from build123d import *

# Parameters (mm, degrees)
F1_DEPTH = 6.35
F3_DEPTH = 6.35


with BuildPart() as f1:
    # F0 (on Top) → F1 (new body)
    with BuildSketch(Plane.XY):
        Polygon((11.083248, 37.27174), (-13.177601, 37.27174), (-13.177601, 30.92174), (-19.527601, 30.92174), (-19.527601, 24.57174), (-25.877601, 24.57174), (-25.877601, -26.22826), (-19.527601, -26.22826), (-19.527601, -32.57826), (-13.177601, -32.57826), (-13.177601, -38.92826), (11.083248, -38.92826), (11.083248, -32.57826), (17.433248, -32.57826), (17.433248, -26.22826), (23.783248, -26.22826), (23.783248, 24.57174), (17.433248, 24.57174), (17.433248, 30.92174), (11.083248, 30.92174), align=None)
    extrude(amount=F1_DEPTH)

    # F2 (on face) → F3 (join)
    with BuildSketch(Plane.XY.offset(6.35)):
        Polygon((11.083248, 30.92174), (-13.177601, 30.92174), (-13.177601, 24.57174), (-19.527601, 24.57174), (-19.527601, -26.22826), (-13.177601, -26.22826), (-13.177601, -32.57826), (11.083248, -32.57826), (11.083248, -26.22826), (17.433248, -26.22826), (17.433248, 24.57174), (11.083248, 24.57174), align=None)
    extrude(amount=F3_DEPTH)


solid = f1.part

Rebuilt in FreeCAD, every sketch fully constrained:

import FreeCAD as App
import Part
import Sketcher
Q = App.Units.Quantity

doc = App.newDocument("Part")
body = doc.addObject("PartDesign::Body", "Body")

sketch1 = body.newObject("Sketcher::SketchObject", "Sketch")
sketch1.AttachmentSupport = (doc.getObject("XY_Plane"), [""])
sketch1.MapMode = "FlatFace"
sketch1.addGeometry([
    Part.LineSegment(App.Vector(11, 37, 0), App.Vector(-13, 37, 0)),
    Part.LineSegment(App.Vector(-13, 37, 0), App.Vector(-13, 31, 0)),
    Part.LineSegment(App.Vector(-13, 31, 0), App.Vector(-20, 31, 0)),
    Part.LineSegment(App.Vector(-20, 31, 0), App.Vector(-20, 25, 0)),
    Part.LineSegment(App.Vector(-20, 25, 0), App.Vector(-26, 25, 0)),
    Part.LineSegment(App.Vector(-26, 25, 0), App.Vector(-26, -26, 0)),
    Part.LineSegment(App.Vector(-26, -26, 0), App.Vector(-20, -26, 0)),
    Part.LineSegment(App.Vector(-20, -26, 0), App.Vector(-20, -33, 0)),
    Part.LineSegment(App.Vector(-20, -33, 0), App.Vector(-13, -33, 0)),
    Part.LineSegment(App.Vector(-13, -33, 0), App.Vector(-13, -39, 0)),
    Part.LineSegment(App.Vector(-13, -39, 0), App.Vector(11, -39, 0)),
    Part.LineSegment(App.Vector(11, -39, 0), App.Vector(11, -33, 0)),
    Part.LineSegment(App.Vector(11, -33, 0), App.Vector(17, -33, 0)),
    Part.LineSegment(App.Vector(17, -33, 0), App.Vector(17, -26, 0)),
    Part.LineSegment(App.Vector(17, -26, 0), App.Vector(24, -26, 0)),
    Part.LineSegment(App.Vector(24, -26, 0), App.Vector(24, 25, 0)),
    Part.LineSegment(App.Vector(24, 25, 0), App.Vector(17, 25, 0)),
    Part.LineSegment(App.Vector(17, 25, 0), App.Vector(17, 31, 0)),
    Part.LineSegment(App.Vector(17, 31, 0), App.Vector(11, 31, 0)),
    Part.LineSegment(App.Vector(11, 31, 0), App.Vector(11, 37, 0)),
], False)
sketch1.addConstraint([
    Sketcher.Constraint("Coincident", 0, 2, 1, 1),
    Sketcher.Constraint("Coincident", 1, 2, 2, 1),
    Sketcher.Constraint("Coincident", 2, 2, 3, 1),
    Sketcher.Constraint("Coincident", 3, 2, 4, 1),
    Sketcher.Constraint("Coincident", 4, 2, 5, 1),
    Sketcher.Constraint("Coincident", 5, 2, 6, 1),
    Sketcher.Constraint("Coincident", 6, 2, 7, 1),
    Sketcher.Constraint("Coincident", 7, 2, 8, 1),
    Sketcher.Constraint("Coincident", 8, 2, 9, 1),
    Sketcher.Constraint("Coincident", 9, 2, 10, 1),
    Sketcher.Constraint("Coincident", 10, 2, 11, 1),
    Sketcher.Constraint("Coincident", 11, 2, 12, 1),
    Sketcher.Constraint("Coincident", 12, 2, 13, 1),
    Sketcher.Constraint("Coincident", 13, 2, 14, 1),
    Sketcher.Constraint("Coincident", 14, 2, 15, 1),
    Sketcher.Constraint("Coincident", 15, 2, 16, 1),
    Sketcher.Constraint("Coincident", 16, 2, 17, 1),
    Sketcher.Constraint("Coincident", 17, 2, 18, 1),
    Sketcher.Constraint("Coincident", 18, 2, 19, 1),
    Sketcher.Constraint("Coincident", 19, 2, 0, 1),
    Sketcher.Constraint("Horizontal", 0),
    Sketcher.Constraint("Vertical", 1),
    Sketcher.Constraint("Horizontal", 2),
    Sketcher.Constraint("Vertical", 3),
    Sketcher.Constraint("Horizontal", 4),
    Sketcher.Constraint("Vertical", 5),
    Sketcher.Constraint("Horizontal", 6),
    Sketcher.Constraint("Vertical", 7),
    Sketcher.Constraint("Horizontal", 8),
    Sketcher.Constraint("Vertical", 9),
    Sketcher.Constraint("Horizontal", 10),
    Sketcher.Constraint("Vertical", 11),
    Sketcher.Constraint("Horizontal", 12),
    Sketcher.Constraint("Vertical", 13),
    Sketcher.Constraint("Horizontal", 14),
    Sketcher.Constraint("Vertical", 15),
    Sketcher.Constraint("Horizontal", 16),
    Sketcher.Constraint("Vertical", 17),
    Sketcher.Constraint("Horizontal", 18),
    Sketcher.Constraint("Vertical", 19),
    Sketcher.Constraint("Horizontal", 8, 2, 11, 2),
    Sketcher.Constraint("Horizontal", 6, 2, 13, 2),
    Sketcher.Constraint("Horizontal", 4, 2, 15, 2),
    Sketcher.Constraint("Horizontal", 2, 2, 17, 2),
    Sketcher.Constraint("Vertical", 3, 2, 6, 2),
    Sketcher.Constraint("Vertical", 1, 2, 8, 2),
    Sketcher.Constraint("Vertical", 13, 2, 16, 2),
    Sketcher.Constraint("Vertical", 11, 2, 18, 2),
    Sketcher.Constraint("Equal", 2, 4),
    Sketcher.Constraint("Equal", 8, 12),
    Sketcher.Constraint("Equal", 12, 14),
    Sketcher.Constraint("Equal", 18, 1),
    Sketcher.Constraint("Equal", 1, 3),
    Sketcher.Constraint("Equal", 3, 7),
    Sketcher.Constraint("Equal", 7, 9),
    Sketcher.Constraint("DistanceY", 5, 2, 5, 1, Q("2 in")),
    Sketcher.Constraint("DistanceX", 2, 2, 2, 1, Q("0.25 in")),
    Sketcher.Constraint("DistanceX", 0, 2, 0, 1, 24.260849),
    Sketcher.Constraint("DistanceX", 0, 2, -1, 1, 13.177601),
    Sketcher.Constraint("DistanceY", -1, 1, 0, 2, 37.27174),
])
pad1 = body.newObject("PartDesign::Pad", "Pad")
pad1.Profile = sketch1
pad1.Length = Q("0.25 in")

sketch2 = body.newObject("Sketcher::SketchObject", "Sketch001")
sketch2.AttachmentSupport = (doc.getObject("XY_Plane"), [""])
sketch2.MapMode = "FlatFace"
sketch2.AttachmentOffset = App.Placement(App.Vector(0, 0, 0.25 * 25.4), App.Rotation())
sketch2.addGeometry([
    Part.LineSegment(App.Vector(11, 31, 0), App.Vector(-13, 31, 0)),
    Part.LineSegment(App.Vector(-13, 31, 0), App.Vector(-13, 25, 0)),
    Part.LineSegment(App.Vector(-13, 25, 0), App.Vector(-20, 25, 0)),
    Part.LineSegment(App.Vector(-20, 25, 0), App.Vector(-20, -26, 0)),
    Part.LineSegment(App.Vector(-20, -26, 0), App.Vector(-13, -26, 0)),
    Part.LineSegment(App.Vector(-13, -26, 0), App.Vector(-13, -33, 0)),
    Part.LineSegment(App.Vector(-13, -33, 0), App.Vector(11, -33, 0)),
    Part.LineSegment(App.Vector(11, -33, 0), App.Vector(11, -26, 0)),
    Part.LineSegment(App.Vector(11, -26, 0), App.Vector(17, -26, 0)),
    Part.LineSegment(App.Vector(17, -26, 0), App.Vector(17, 25, 0)),
    Part.LineSegment(App.Vector(17, 25, 0), App.Vector(11, 25, 0)),
    Part.LineSegment(App.Vector(11, 25, 0), App.Vector(11, 31, 0)),
], False)
sketch2.addConstraint([
    Sketcher.Constraint("Coincident", 0, 2, 1, 1),
    Sketcher.Constraint("Coincident", 1, 2, 2, 1),
    Sketcher.Constraint("Coincident", 2, 2, 3, 1),
    Sketcher.Constraint("Coincident", 3, 2, 4, 1),
    Sketcher.Constraint("Coincident", 4, 2, 5, 1),
    Sketcher.Constraint("Coincident", 5, 2, 6, 1),
    Sketcher.Constraint("Coincident", 6, 2, 7, 1),
    Sketcher.Constraint("Coincident", 7, 2, 8, 1),
    Sketcher.Constraint("Coincident", 8, 2, 9, 1),
    Sketcher.Constraint("Coincident", 9, 2, 10, 1),
    Sketcher.Constraint("Coincident", 10, 2, 11, 1),
    Sketcher.Constraint("Coincident", 11, 2, 0, 1),
    Sketcher.Constraint("Horizontal", 0),
    Sketcher.Constraint("Vertical", 1),
    Sketcher.Constraint("Horizontal", 2),
    Sketcher.Constraint("Vertical", 3),
    Sketcher.Constraint("Horizontal", 4),
    Sketcher.Constraint("Vertical", 5),
    Sketcher.Constraint("Horizontal", 6),
    Sketcher.Constraint("Vertical", 7),
    Sketcher.Constraint("Horizontal", 8),
    Sketcher.Constraint("Vertical", 9),
    Sketcher.Constraint("Horizontal", 10),
    Sketcher.Constraint("Vertical", 11),
    Sketcher.Constraint("Horizontal", 4, 2, 7, 2),
    Sketcher.Constraint("Horizontal", 2, 2, 9, 2),
    Sketcher.Constraint("Vertical", 1, 2, 4, 2),
    Sketcher.Constraint("Vertical", 7, 2, 10, 2),
    Sketcher.Constraint("Equal", 4, 8),
    Sketcher.Constraint("Equal", 10, 1),
    Sketcher.Constraint("Equal", 1, 5),
    Sketcher.Constraint("DistanceY", 3, 2, 3, 1, Q("2 in")),
    Sketcher.Constraint("DistanceX", 2, 2, 2, 1, Q("0.25 in")),
    Sketcher.Constraint("DistanceX", 0, 2, 0, 1, 24.260849),
    Sketcher.Constraint("DistanceX", 0, 2, -1, 1, 13.177601),
    Sketcher.Constraint("DistanceY", -1, 1, 0, 2, 30.92174),
])
pad2 = body.newObject("PartDesign::Pad", "Pad001")
pad2.Profile = sketch2
pad2.Length = Q("0.25 in")

doc.recompute()
